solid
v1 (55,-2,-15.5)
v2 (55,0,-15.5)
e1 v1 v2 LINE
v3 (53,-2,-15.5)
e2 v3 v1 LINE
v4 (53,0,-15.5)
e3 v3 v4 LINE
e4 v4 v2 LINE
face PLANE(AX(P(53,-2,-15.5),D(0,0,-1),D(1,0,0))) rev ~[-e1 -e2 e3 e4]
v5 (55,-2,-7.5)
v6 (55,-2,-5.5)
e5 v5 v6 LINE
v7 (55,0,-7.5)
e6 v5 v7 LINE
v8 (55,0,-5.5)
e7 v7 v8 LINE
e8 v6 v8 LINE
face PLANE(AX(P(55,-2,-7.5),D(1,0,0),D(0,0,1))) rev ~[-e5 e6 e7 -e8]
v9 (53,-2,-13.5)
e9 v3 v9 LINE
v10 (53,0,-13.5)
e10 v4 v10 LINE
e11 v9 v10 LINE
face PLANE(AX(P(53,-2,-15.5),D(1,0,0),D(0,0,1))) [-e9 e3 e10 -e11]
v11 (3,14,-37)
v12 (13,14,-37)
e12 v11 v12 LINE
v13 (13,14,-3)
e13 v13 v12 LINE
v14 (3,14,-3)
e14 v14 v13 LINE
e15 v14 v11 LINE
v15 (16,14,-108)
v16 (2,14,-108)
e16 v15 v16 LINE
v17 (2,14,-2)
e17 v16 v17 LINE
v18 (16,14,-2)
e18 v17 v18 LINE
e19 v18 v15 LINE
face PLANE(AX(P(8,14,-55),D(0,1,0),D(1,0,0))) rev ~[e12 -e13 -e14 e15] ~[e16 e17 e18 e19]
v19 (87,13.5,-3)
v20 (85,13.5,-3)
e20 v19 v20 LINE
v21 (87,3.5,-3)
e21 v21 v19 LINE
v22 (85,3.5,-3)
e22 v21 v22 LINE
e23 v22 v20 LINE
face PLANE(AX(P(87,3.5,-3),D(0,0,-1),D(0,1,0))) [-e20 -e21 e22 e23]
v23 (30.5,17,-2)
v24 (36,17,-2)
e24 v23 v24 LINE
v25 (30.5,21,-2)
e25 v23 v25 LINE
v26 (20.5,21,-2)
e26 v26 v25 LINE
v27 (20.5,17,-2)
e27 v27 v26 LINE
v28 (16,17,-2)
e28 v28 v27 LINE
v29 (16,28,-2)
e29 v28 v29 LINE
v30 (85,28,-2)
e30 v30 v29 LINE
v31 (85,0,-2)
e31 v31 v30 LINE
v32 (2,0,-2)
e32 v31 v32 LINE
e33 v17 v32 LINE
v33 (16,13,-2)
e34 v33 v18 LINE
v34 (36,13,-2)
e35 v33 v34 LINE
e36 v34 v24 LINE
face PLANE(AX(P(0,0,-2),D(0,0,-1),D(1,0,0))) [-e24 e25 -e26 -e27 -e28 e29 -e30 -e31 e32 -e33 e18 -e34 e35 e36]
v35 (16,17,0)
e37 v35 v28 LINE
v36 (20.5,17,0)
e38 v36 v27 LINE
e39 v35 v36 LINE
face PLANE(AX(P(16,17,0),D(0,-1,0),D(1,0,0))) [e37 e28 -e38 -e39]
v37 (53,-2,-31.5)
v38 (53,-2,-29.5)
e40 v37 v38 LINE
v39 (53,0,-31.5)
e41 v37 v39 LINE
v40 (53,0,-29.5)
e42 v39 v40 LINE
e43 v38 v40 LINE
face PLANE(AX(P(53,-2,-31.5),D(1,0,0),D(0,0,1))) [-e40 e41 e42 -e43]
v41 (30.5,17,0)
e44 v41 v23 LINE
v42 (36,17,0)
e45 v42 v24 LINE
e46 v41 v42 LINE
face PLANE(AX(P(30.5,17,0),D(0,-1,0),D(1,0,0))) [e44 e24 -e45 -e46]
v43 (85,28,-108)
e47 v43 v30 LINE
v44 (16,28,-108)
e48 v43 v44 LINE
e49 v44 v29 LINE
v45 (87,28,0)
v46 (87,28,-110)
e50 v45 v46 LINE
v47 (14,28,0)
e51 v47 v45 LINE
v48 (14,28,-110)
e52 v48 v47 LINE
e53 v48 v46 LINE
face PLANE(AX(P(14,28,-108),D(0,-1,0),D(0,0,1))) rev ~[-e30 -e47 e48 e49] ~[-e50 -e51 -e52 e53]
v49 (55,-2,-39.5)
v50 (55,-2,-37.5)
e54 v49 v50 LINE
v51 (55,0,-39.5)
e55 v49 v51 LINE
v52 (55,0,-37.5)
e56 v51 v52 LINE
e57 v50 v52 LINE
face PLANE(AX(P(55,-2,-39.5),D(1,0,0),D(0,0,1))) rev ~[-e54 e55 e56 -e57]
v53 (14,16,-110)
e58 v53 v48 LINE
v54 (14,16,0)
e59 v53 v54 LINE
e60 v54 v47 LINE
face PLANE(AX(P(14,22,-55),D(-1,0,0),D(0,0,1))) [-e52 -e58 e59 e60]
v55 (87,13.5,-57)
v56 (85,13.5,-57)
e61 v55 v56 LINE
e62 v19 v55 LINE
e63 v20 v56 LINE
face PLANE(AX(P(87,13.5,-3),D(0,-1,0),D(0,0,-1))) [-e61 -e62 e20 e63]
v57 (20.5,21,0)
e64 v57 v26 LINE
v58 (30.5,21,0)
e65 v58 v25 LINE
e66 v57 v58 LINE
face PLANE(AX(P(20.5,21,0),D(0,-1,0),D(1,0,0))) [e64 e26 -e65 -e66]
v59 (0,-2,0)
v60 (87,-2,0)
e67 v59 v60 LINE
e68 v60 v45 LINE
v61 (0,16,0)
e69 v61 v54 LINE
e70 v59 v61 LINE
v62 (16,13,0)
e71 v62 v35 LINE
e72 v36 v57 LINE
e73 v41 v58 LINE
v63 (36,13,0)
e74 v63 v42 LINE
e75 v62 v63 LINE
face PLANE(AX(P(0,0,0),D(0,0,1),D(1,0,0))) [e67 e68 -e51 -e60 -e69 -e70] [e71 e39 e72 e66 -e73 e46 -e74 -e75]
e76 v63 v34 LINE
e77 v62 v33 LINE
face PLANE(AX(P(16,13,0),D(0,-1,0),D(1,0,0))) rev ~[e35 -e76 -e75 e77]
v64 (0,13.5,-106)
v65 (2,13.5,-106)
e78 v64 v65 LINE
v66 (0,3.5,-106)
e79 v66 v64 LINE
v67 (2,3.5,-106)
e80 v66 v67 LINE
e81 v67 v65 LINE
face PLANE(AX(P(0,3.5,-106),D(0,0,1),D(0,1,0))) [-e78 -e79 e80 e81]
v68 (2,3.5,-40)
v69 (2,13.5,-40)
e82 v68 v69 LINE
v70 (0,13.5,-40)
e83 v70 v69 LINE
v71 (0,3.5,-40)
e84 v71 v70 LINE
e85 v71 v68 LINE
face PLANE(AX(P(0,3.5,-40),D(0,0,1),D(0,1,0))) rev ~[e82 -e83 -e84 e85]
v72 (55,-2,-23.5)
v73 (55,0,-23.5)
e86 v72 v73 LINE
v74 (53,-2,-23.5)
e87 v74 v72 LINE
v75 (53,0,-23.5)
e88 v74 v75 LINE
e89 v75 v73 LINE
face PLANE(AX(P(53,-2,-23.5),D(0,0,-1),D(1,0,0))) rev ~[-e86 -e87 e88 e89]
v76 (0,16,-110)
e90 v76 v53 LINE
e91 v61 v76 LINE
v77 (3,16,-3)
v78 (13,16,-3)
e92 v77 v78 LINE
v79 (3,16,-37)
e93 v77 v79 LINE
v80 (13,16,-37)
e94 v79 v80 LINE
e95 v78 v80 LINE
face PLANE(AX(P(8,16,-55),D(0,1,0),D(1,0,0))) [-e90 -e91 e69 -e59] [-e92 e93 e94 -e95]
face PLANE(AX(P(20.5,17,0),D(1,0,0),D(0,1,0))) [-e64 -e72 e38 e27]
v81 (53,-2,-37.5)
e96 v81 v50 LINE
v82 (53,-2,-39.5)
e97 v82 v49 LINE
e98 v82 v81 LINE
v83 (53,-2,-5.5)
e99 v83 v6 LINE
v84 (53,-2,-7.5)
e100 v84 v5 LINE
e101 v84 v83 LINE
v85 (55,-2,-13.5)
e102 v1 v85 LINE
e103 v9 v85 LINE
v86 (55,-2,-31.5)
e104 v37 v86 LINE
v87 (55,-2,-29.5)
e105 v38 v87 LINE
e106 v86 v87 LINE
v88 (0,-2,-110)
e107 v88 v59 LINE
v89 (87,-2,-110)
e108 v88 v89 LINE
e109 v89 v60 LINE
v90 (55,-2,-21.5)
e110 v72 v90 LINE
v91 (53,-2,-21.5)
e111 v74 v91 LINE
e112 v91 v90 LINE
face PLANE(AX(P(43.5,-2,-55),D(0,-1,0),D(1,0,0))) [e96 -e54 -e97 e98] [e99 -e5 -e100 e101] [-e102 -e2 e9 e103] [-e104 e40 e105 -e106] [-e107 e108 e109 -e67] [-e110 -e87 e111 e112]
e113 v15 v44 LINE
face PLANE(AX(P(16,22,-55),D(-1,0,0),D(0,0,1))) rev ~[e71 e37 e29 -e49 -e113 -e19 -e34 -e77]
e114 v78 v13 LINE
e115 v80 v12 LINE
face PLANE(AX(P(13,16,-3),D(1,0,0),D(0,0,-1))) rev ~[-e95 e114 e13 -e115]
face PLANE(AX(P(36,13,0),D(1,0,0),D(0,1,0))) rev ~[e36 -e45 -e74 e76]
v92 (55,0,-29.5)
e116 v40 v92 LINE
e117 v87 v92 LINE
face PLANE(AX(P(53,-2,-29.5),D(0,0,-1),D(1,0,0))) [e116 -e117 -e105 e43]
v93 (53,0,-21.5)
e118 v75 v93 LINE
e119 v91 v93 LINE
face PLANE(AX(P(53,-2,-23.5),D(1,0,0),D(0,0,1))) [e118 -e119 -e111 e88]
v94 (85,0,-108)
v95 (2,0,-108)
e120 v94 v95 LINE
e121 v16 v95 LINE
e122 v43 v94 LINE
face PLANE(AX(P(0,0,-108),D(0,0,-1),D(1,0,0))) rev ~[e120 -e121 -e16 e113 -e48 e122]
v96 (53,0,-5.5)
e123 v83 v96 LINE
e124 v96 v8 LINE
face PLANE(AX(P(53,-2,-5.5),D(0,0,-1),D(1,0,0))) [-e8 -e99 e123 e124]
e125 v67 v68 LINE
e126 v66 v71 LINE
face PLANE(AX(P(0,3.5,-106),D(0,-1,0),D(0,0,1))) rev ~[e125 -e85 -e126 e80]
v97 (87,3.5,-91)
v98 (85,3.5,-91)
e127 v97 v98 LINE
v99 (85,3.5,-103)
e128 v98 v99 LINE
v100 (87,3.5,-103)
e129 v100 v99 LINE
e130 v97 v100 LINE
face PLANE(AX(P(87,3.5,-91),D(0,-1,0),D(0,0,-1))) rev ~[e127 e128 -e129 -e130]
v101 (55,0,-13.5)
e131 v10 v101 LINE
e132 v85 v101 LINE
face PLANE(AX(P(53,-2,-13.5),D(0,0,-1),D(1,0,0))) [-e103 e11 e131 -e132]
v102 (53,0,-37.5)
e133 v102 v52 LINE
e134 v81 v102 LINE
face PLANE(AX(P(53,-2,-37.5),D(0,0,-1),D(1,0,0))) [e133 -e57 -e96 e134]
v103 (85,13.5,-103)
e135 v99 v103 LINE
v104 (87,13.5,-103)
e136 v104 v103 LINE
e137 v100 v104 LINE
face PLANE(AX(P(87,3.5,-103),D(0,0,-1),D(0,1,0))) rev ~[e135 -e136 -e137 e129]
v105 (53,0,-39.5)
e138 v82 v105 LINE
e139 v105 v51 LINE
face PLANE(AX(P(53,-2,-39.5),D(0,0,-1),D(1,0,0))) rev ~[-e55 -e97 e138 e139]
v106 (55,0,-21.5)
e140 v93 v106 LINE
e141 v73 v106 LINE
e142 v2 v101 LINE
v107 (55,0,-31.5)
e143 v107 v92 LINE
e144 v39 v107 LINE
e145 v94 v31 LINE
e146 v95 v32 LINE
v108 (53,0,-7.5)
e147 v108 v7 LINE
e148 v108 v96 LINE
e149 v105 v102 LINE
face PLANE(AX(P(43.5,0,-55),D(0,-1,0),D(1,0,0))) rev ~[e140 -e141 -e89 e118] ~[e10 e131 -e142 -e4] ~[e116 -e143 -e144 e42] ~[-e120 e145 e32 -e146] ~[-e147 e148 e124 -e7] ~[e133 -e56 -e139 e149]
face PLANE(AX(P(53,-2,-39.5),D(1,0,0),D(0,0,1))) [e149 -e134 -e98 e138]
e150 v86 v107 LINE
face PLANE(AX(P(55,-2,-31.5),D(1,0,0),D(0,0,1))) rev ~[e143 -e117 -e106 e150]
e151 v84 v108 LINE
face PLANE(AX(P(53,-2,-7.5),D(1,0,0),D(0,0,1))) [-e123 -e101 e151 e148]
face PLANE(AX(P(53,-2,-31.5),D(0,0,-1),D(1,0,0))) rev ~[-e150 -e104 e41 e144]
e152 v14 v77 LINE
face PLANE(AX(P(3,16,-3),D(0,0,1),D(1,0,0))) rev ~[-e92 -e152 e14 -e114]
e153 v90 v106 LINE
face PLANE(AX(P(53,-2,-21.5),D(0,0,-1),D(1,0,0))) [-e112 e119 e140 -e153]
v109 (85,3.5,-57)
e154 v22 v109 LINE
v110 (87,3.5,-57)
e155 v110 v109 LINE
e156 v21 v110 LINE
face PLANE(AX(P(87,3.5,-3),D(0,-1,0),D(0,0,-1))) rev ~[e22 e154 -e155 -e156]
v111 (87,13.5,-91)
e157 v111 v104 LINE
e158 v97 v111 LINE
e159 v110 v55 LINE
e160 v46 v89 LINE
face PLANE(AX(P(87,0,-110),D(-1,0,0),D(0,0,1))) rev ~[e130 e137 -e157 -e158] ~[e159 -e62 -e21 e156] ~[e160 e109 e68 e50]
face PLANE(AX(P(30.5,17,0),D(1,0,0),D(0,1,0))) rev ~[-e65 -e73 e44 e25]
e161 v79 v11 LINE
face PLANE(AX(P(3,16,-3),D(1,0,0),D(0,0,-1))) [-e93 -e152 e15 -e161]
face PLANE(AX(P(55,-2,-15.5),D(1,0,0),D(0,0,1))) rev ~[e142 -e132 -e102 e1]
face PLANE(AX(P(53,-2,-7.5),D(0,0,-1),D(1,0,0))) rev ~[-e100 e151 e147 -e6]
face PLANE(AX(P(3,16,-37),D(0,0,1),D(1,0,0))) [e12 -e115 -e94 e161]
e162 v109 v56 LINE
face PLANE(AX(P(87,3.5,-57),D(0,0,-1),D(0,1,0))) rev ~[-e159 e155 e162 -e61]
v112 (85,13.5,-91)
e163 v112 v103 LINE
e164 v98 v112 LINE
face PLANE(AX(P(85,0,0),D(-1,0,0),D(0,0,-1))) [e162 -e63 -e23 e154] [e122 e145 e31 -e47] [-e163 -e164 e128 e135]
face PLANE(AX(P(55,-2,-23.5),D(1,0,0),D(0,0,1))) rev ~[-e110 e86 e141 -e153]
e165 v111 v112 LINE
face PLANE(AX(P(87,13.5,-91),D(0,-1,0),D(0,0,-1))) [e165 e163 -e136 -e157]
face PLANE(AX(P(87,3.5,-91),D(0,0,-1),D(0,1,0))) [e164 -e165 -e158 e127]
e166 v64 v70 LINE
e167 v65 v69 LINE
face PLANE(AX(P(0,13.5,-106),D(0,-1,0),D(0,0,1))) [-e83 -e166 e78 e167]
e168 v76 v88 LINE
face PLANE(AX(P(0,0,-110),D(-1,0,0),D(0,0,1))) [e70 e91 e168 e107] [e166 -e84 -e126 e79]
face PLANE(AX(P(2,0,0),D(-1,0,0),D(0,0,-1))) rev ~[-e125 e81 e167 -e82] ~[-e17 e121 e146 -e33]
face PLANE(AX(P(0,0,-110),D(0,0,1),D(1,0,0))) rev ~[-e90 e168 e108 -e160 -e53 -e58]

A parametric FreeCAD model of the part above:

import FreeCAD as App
import Part
import Sketcher
Q = App.Units.Quantity


def faces_at(feature, points):
    """Names of the faces that lie closest to the given points."""
    faces = feature.Shape.Faces
    near = lambda p: min(range(len(faces)), key=lambda i: faces[i].distToShape(Part.Vertex(*p))[0])
    return sorted({f"Face{near(p) + 1}" for p in points})

doc = App.newDocument("Part")
params = doc.addObject("Spreadsheet::Sheet", "Params")
for row, (alias, value) in enumerate([
    ("sketch1_width", "87 mm"),
    ("sketch1_height", "110 mm"),
    ("pad1_length", "28 mm"),
    ("thickness_wall", "2 mm"),
    ("sketch2_width", "10 mm"),
    ("sketch2_height", "66 mm"),
    ("pocket1_length", "2 mm"),
    ("sketch3_width", "14 mm"),
    ("pocket2_length", "110 mm"),
    ("sketch4_width", "16 mm"),
    ("sketch4_height", "110 mm"),
    ("pad2_length", "2 mm"),
    ("sketch5_width", "10 mm"),
    ("sketch5_height", "34 mm"),
    ("pocket3_length", "1 mm"),
    ("sketch6_width", "20 mm"),
    ("sketch6_width2", "10 mm"),
    ("sketch6_height", "4 mm"),
    ("sketch6_width3", "4.5 mm"),
    ("pocket4_length", "2 mm"),
    ("sketch7_width", "10 mm"),
    ("sketch7_height", "54 mm"),
    ("pocket5_length", "2 mm"),
    ("sketch8_width", "87 mm"),
    ("sketch8_height", "110 mm"),
    ("pad3_length", "2 mm"),
    ("sketch9_width", "10 mm"),
    ("sketch9_height", "12 mm"),
    ("pocket6_length", "2 mm"),
    ("sketch10_width", "2 mm"),
    ("pocket7_length", "2 mm"),
    ("sketch11_width", "10 mm"),
    ("sketch11_height", "34 mm"),
    ("pocket8_length", "2 mm"),
    ("sketch12_width", "12 mm"),
    ("sketch12_height", "106 mm"),
    ("pad4_length", "2 mm"),
], start=1):
    params.set(f"A{row}", alias)
    params.set(f"B{row}", "=" + value)
    params.setAlias(f"B{row}", alias)

body = doc.addObject("PartDesign::Body", "Body")

sketch1 = doc.addObject("Sketcher::SketchObject", "Sketch")
body.addObject(sketch1)
sketch1.AttachmentSupport = (doc.XZ_Plane, [""])
sketch1.MapMode = "FlatFace"
sketch1.addGeometry([
    Part.LineSegment(App.Vector(0, -110, 0), App.Vector(0, 0, 0)),
    Part.LineSegment(App.Vector(0, 0, 0), App.Vector(87, 0, 0)),
    Part.LineSegment(App.Vector(87, 0, 0), App.Vector(87, -110, 0)),
    Part.LineSegment(App.Vector(87, -110, 0), App.Vector(0, -110, 0)),
], False)
sketch1.addConstraint([
    Sketcher.Constraint("Coincident", 0, 2, 1, 1),
    Sketcher.Constraint("Coincident", 1, 2, 2, 1),
    Sketcher.Constraint("Coincident", 2, 2, 3, 1),
    Sketcher.Constraint("Coincident", 3, 2, 0, 1),
    Sketcher.Constraint("Vertical", 0),
    Sketcher.Constraint("Horizontal", 1),
    Sketcher.Constraint("Vertical", 2),
    Sketcher.Constraint("Horizontal", 3),
    Sketcher.Constraint("Coincident", 0, 2, -1, 1),
    Sketcher.Constraint("DistanceX", 1, 1, 1, 2, Q("87 mm")),
    Sketcher.Constraint("DistanceY", 0, 1, 0, 2, Q("110 mm")),
])
sketch1.setExpression("Constraints[9]", "Params.sketch1_width")
sketch1.setExpression("Constraints[10]", "Params.sketch1_height")
pad1 = doc.addObject("PartDesign::Pad", "Pad")
body.addObject(pad1)
pad1.Profile = sketch1
pad1.setExpression("Length", "Params.pad1_length")
pad1.Reversed = True
doc.recompute()

thickness = doc.addObject("PartDesign::Thickness", "Thickness")
body.addObject(thickness)
thickness.Base = (pad1, faces_at(pad1, [(43.5, 28, -55), (43.5, 0, -55)]))
thickness.setExpression("Value", "Params.thickness_wall")
thickness.Reversed = True
thickness.Join = "Intersection"

sketch2 = doc.addObject("Sketcher::SketchObject", "Sketch001")
body.addObject(sketch2)
sketch2.AttachmentSupport = (doc.YZ_Plane, [""])
sketch2.MapMode = "FlatFace"
sketch2.addGeometry([
    Part.LineSegment(App.Vector(14, -106, 0), App.Vector(4, -106, 0)),
    Part.LineSegment(App.Vector(4, -106, 0), App.Vector(4, -40, 0)),
    Part.LineSegment(App.Vector(4, -40, 0), App.Vector(14, -40, 0)),
    Part.LineSegment(App.Vector(14, -40, 0), App.Vector(14, -106, 0)),
], False)
sketch2.addConstraint([
    Sketcher.Constraint("Coincident", 0, 2, 1, 1),
    Sketcher.Constraint("Coincident", 1, 2, 2, 1),
    Sketcher.Constraint("Coincident", 2, 2, 3, 1),
    Sketcher.Constraint("Coincident", 3, 2, 0, 1),
    Sketcher.Constraint("Horizontal", 0),
    Sketcher.Constraint("Vertical", 1),
    Sketcher.Constraint("Horizontal", 2),
    Sketcher.Constraint("Vertical", 3),
    Sketcher.Constraint("DistanceX", 0, 2, 0, 1, Q("10 mm")),
    Sketcher.Constraint("DistanceY", 1, 1, 1, 2, Q("66 mm")),
    Sketcher.Constraint("DistanceY", 0, 2, -1, 1, Q("106 mm")),
    Sketcher.Constraint("DistanceX", -1, 1, 0, 2, Q("3.5 mm")),
])
sketch2.setExpression("Constraints[8]", "Params.sketch2_width")
sketch2.setExpression("Constraints[9]", "Params.sketch2_height")
pocket1 = doc.addObject("PartDesign::Pocket", "Pocket")
body.addObject(pocket1)
pocket1.Profile = sketch2
pocket1.setExpression("Length", "Params.pocket1_length")
pocket1.Reversed = True

sketch3 = doc.addObject("Sketcher::SketchObject", "Sketch002")
body.addObject(sketch3)
sketch3.AttachmentSupport = (doc.XY_Plane, [""])
sketch3.MapMode = "FlatFace"
sketch3.AttachmentOffset = App.Placement(App.Vector(0, 0, -110), App.Rotation())
sketch3.addGeometry([
    Part.LineSegment(App.Vector(14, 28, 0), App.Vector(14, 14, 0)),
    Part.LineSegment(App.Vector(14, 14, 0), App.Vector(0, 14, 0)),
    Part.LineSegment(App.Vector(0, 14, 0), App.Vector(0, 28, 0)),
    Part.LineSegment(App.Vector(0, 28, 0), App.Vector(14, 28, 0)),
], False)
sketch3.addConstraint([
    Sketcher.Constraint("Coincident", 0, 2, 1, 1),
    Sketcher.Constraint("Coincident", 1, 2, 2, 1),
    Sketcher.Constraint("Coincident", 2, 2, 3, 1),
    Sketcher.Constraint("Coincident", 3, 2, 0, 1),
    Sketcher.Constraint("Vertical", 0),
    Sketcher.Constraint("Horizontal", 1),
    Sketcher.Constraint("Vertical", 2),
    Sketcher.Constraint("Horizontal", 3),
    Sketcher.Constraint("PointOnObject", 1, 2, -2),
    Sketcher.Constraint("Equal", 3, 0),
    Sketcher.Constraint("DistanceX", 1, 2, 1, 1, Q("14 mm")),
    Sketcher.Constraint("DistanceY", -1, 1, 0, 2, Q("14 mm")),
])
sketch3.setExpression("Constraints[10]", "Params.sketch3_width")
pocket2 = doc.addObject("PartDesign::Pocket", "Pocket001")
body.addObject(pocket2)
pocket2.Profile = sketch3
pocket2.setExpression("Length", "Params.pocket2_length")
pocket2.Reversed = True

sketch4 = doc.addObject("Sketcher::SketchObject", "Sketch003")
body.addObject(sketch4)
sketch4.AttachmentSupport = (doc.XZ_Plane, [""])
sketch4.MapMode = "FlatFace"
sketch4.AttachmentOffset = App.Placement(App.Vector(0, 0, -14), App.Rotation())
sketch4.addGeometry([
    Part.LineSegment(App.Vector(0, -110, 0), App.Vector(0, 0, 0)),
    Part.LineSegment(App.Vector(0, 0, 0), App.Vector(16, 0, 0)),
    Part.LineSegment(App.Vector(16, 0, 0), App.Vector(16, -110, 0)),
    Part.LineSegment(App.Vector(16, -110, 0), App.Vector(0, -110, 0)),
], False)
sketch4.addConstraint([
    Sketcher.Constraint("Coincident", 0, 2, 1, 1),
    Sketcher.Constraint("Coincident", 1, 2, 2, 1),
    Sketcher.Constraint("Coincident", 2, 2, 3, 1),
    Sketcher.Constraint("Coincident", 3, 2, 0, 1),
    Sketcher.Constraint("Vertical", 0),
    Sketcher.Constraint("Horizontal", 1),
    Sketcher.Constraint("Vertical", 2),
    Sketcher.Constraint("Horizontal", 3),
    Sketcher.Constraint("Coincident", 0, 2, -1, 1),
    Sketcher.Constraint("DistanceX", 1, 1, 1, 2, Q("16 mm")),
    Sketcher.Constraint("DistanceY", 0, 1, 0, 2, Q("110 mm")),
])
sketch4.setExpression("Constraints[9]", "Params.sketch4_width")
sketch4.setExpression("Constraints[10]", "Params.sketch4_height")
pad2 = doc.addObject("PartDesign::Pad", "Pad001")
body.addObject(pad2)
pad2.Profile = sketch4
pad2.setExpression("Length", "Params.pad2_length")
pad2.Reversed = True

sketch5 = doc.addObject("Sketcher::SketchObject", "Sketch004")
body.addObject(sketch5)
sketch5.AttachmentSupport = (doc.XZ_Plane, [""])
sketch5.MapMode = "FlatFace"
sketch5.AttachmentOffset = App.Placement(App.Vector(0, 0, -16), App.Rotation())
sketch5.addGeometry([
    Part.LineSegment(App.Vector(3, -37, 0), App.Vector(3, -3, 0)),
    Part.LineSegment(App.Vector(3, -3, 0), App.Vector(13, -3, 0)),
    Part.LineSegment(App.Vector(13, -3, 0), App.Vector(13, -37, 0)),
    Part.LineSegment(App.Vector(13, -37, 0), App.Vector(3, -37, 0)),
], False)
sketch5.addConstraint([
    Sketcher.Constraint("Coincident", 0, 2, 1, 1),
    Sketcher.Constraint("Coincident", 1, 2, 2, 1),
    Sketcher.Constraint("Coincident", 2, 2, 3, 1),
    Sketcher.Constraint("Coincident", 3, 2, 0, 1),
    Sketcher.Constraint("Vertical", 0),
    Sketcher.Constraint("Horizontal", 1),
    Sketcher.Constraint("Vertical", 2),
    Sketcher.Constraint("Horizontal", 3),
    Sketcher.Constraint("DistanceX", 1, 1, 1, 2, Q("10 mm")),
    Sketcher.Constraint("DistanceY", 0, 1, 0, 2, Q("34 mm")),
    Sketcher.Constraint("DistanceX", -1, 1, 0, 2, Q("3 mm")),
    Sketcher.Constraint("DistanceY", 0, 2, -1, 1, Q("3 mm")),
])
sketch5.setExpression("Constraints[8]", "Params.sketch5_width")
sketch5.setExpression("Constraints[9]", "Params.sketch5_height")
pocket3 = doc.addObject("PartDesign::Pocket", "Pocket002")
body.addObject(pocket3)
pocket3.Profile = sketch5
pocket3.setExpression("Length", "Params.pocket3_length")
pocket3.Reversed = True

sketch6 = doc.addObject("Sketcher::SketchObject", "Sketch005")
body.addObject(sketch6)
sketch6.AttachmentSupport = (doc.XY_Plane, [""])
sketch6.MapMode = "FlatFace"
sketch6.addGeometry([
    Part.LineSegment(App.Vector(20.5, 21, 0), App.Vector(20.5, 17, 0)),
    Part.LineSegment(App.Vector(20.5, 17, 0), App.Vector(16, 17, 0)),
    Part.LineSegment(App.Vector(16, 17, 0), App.Vector(16, 13, 0)),
    Part.LineSegment(App.Vector(16, 13, 0), App.Vector(36, 13, 0)),
    Part.LineSegment(App.Vector(36, 13, 0), App.Vector(36, 17, 0)),
    Part.LineSegment(App.Vector(36, 17, 0), App.Vector(30.5, 17, 0)),
    Part.LineSegment(App.Vector(30.5, 17, 0), App.Vector(30.5, 21, 0)),
    Part.LineSegment(App.Vector(30.5, 21, 0), App.Vector(20.5, 21, 0)),
], False)
sketch6.addConstraint([
    Sketcher.Constraint("Coincident", 0, 2, 1, 1),
    Sketcher.Constraint("Coincident", 1, 2, 2, 1),
    Sketcher.Constraint("Coincident", 2, 2, 3, 1),
    Sketcher.Constraint("Coincident", 3, 2, 4, 1),
    Sketcher.Constraint("Coincident", 4, 2, 5, 1),
    Sketcher.Constraint("Coincident", 5, 2, 6, 1),
    Sketcher.Constraint("Coincident", 6, 2, 7, 1),
    Sketcher.Constraint("Coincident", 7, 2, 0, 1),
    Sketcher.Constraint("Vertical", 0),
    Sketcher.Constraint("Horizontal", 1),
    Sketcher.Constraint("Vertical", 2),
    Sketcher.Constraint("Horizontal", 3),
    Sketcher.Constraint("Vertical", 4),
    Sketcher.Constraint("Horizontal", 5),
    Sketcher.Constraint("Vertical", 6),
    Sketcher.Constraint("Horizontal", 7),
    Sketcher.Constraint("Horizontal", 1, 2, 4, 2),
    Sketcher.Constraint("Equal", 0, 2),
    Sketcher.Constraint("DistanceX", 3, 1, 3, 2, Q("20 mm")),
    Sketcher.Constraint("DistanceX", 7, 2, 7, 1, Q("10 mm")),
    Sketcher.Constraint("DistanceY", 0, 2, 0, 1, Q("4 mm")),
    Sketcher.Constraint("DistanceX", 1, 2, 1, 1, Q("4.5 mm")),
    Sketcher.Constraint("DistanceY", -1, 1, 0, 2, Q("17 mm")),
    Sketcher.Constraint("DistanceX", -1, 1, 1, 2, Q("16 mm")),
])
sketch6.setExpression("Constraints[18]", "Params.sketch6_width")
sketch6.setExpression("Constraints[19]", "Params.sketch6_width2")
sketch6.setExpression("Constraints[20]", "Params.sketch6_height")
sketch6.setExpression("Constraints[21]", "Params.sketch6_width3")
pocket4 = doc.addObject("PartDesign::Pocket", "Pocket003")
body.addObject(pocket4)
pocket4.Profile = sketch6
pocket4.setExpression("Length", "Params.pocket4_length")

sketch7 = doc.addObject("Sketcher::SketchObject", "Sketch006")
body.addObject(sketch7)
sketch7.AttachmentSupport = (doc.YZ_Plane, [""])
sketch7.MapMode = "FlatFace"
sketch7.AttachmentOffset = App.Placement(App.Vector(0, 0, 87), App.Rotation())
sketch7.addGeometry([
    Part.LineSegment(App.Vector(14, -3, 0), App.Vector(4, -3, 0)),
    Part.LineSegment(App.Vector(4, -3, 0), App.Vector(4, -57, 0)),
    Part.LineSegment(App.Vector(4, -57, 0), App.Vector(14, -57, 0)),
    Part.LineSegment(App.Vector(14, -57, 0), App.Vector(14, -3, 0)),
], False)
sketch7.addConstraint([
    Sketcher.Constraint("Coincident", 0, 2, 1, 1),
    Sketcher.Constraint("Coincident", 1, 2, 2, 1),
    Sketcher.Constraint("Coincident", 2, 2, 3, 1),
    Sketcher.Constraint("Coincident", 3, 2, 0, 1),
    Sketcher.Constraint("Horizontal", 0),
    Sketcher.Constraint("Vertical", 1),
    Sketcher.Constraint("Horizontal", 2),
    Sketcher.Constraint("Vertical", 3),
    Sketcher.Constraint("DistanceX", 0, 2, 0, 1, Q("10 mm")),
    Sketcher.Constraint("DistanceY", 1, 2, 1, 1, Q("54 mm")),
    Sketcher.Constraint("DistanceY", 0, 2, -1, 1, Q("3 mm")),
    Sketcher.Constraint("DistanceX", -1, 1, 0, 2, Q("3.5 mm")),
])
sketch7.setExpression("Constraints[8]", "Params.sketch7_width")
sketch7.setExpression("Constraints[9]", "Params.sketch7_height")
pocket5 = doc.addObject("PartDesign::Pocket", "Pocket004")
body.addObject(pocket5)
pocket5.Profile = sketch7
pocket5.setExpression("Length", "Params.pocket5_length")

sketch8 = doc.addObject("Sketcher::SketchObject", "Sketch007")
body.addObject(sketch8)
sketch8.AttachmentSupport = (doc.XZ_Plane, [""])
sketch8.MapMode = "FlatFace"
sketch8.addGeometry([
    Part.LineSegment(App.Vector(0, 0, 0), App.Vector(0, -110, 0)),
    Part.LineSegment(App.Vector(0, -110, 0), App.Vector(87, -110, 0)),
    Part.LineSegment(App.Vector(87, -110, 0), App.Vector(87, 0, 0)),
    Part.LineSegment(App.Vector(87, 0, 0), App.Vector(0, 0, 0)),
], False)
sketch8.addConstraint([
    Sketcher.Constraint("Coincident", 0, 2, 1, 1),
    Sketcher.Constraint("Coincident", 1, 2, 2, 1),
    Sketcher.Constraint("Coincident", 2, 2, 3, 1),
    Sketcher.Constraint("Coincident", 3, 2, 0, 1),
    Sketcher.Constraint("Vertical", 0),
    Sketcher.Constraint("Horizontal", 1),
    Sketcher.Constraint("Vertical", 2),
    Sketcher.Constraint("Horizontal", 3),
    Sketcher.Constraint("Coincident", 3, 2, -1, 1),
    Sketcher.Constraint("DistanceX", 1, 1, 1, 2, Q("87 mm")),
    Sketcher.Constraint("DistanceY", 0, 2, 0, 1, Q("110 mm")),
])
sketch8.setExpression("Constraints[9]", "Params.sketch8_width")
sketch8.setExpression("Constraints[10]", "Params.sketch8_height")
pad3 = doc.addObject("PartDesign::Pad", "Pad002")
body.addObject(pad3)
pad3.Profile = sketch8
pad3.setExpression("Length", "Params.pad3_length")

sketch9 = doc.addObject("Sketcher::SketchObject", "Sketch008")
body.addObject(sketch9)
sketch9.AttachmentSupport = (doc.YZ_Plane, [""])
sketch9.MapMode = "FlatFace"
sketch9.AttachmentOffset = App.Placement(App.Vector(0, 0, 87), App.Rotation())
sketch9.addGeometry([
    Part.LineSegment(App.Vector(14, -91, 0), App.Vector(4, -91, 0)),
    Part.LineSegment(App.Vector(4, -91, 0), App.Vector(4, -103, 0)),
    Part.LineSegment(App.Vector(4, -103, 0), App.Vector(14, -103, 0)),
    Part.LineSegment(App.Vector(14, -103, 0), App.Vector(14, -91, 0)),
], False)
sketch9.addConstraint([
    Sketcher.Constraint("Coincident", 0, 2, 1, 1),
    Sketcher.Constraint("Coincident", 1, 2, 2, 1),
    Sketcher.Constraint("Coincident", 2, 2, 3, 1),
    Sketcher.Constraint("Coincident", 3, 2, 0, 1),
    Sketcher.Constraint("Horizontal", 0),
    Sketcher.Constraint("Vertical", 1),
    Sketcher.Constraint("Horizontal", 2),
    Sketcher.Constraint("Vertical", 3),
    Sketcher.Constraint("DistanceX", 0, 2, 0, 1, Q("10 mm")),
    Sketcher.Constraint("DistanceY", 1, 2, 1, 1, Q("12 mm")),
    Sketcher.Constraint("DistanceY", 0, 2, -1, 1, Q("91 mm")),
    Sketcher.Constraint("DistanceX", -1, 1, 0, 2, Q("3.5 mm")),
])
sketch9.setExpression("Constraints[8]", "Params.sketch9_width")
sketch9.setExpression("Constraints[9]", "Params.sketch9_height")
pocket6 = doc.addObject("PartDesign::Pocket", "Pocket005")
body.addObject(pocket6)
pocket6.Profile = sketch9
pocket6.setExpression("Length", "Params.pocket6_length")

sketch10 = doc.addObject("Sketcher::SketchObject", "Sketch009")
body.addObject(sketch10)
sketch10.AttachmentSupport = (doc.XZ_Plane, [""])
sketch10.MapMode = "FlatFace"
sketch10.AttachmentOffset = App.Placement(App.Vector(0, 0, 2), App.Rotation())
sketch10.addGeometry([
    Part.LineSegment(App.Vector(53, -5.5, 0), App.Vector(53, -7.5, 0)),
    Part.LineSegment(App.Vector(53, -7.5, 0), App.Vector(55, -7.5, 0)),
    Part.LineSegment(App.Vector(55, -7.5, 0), App.Vector(55, -5.5, 0)),
    Part.LineSegment(App.Vector(55, -5.5, 0), App.Vector(53, -5.5, 0)),
    Part.LineSegment(App.Vector(53, -37.5, 0), App.Vector(53, -39.5, 0)),
    Part.LineSegment(App.Vector(53, -39.5, 0), App.Vector(55, -39.5, 0)),
    Part.LineSegment(App.Vector(55, -39.5, 0), App.Vector(55, -37.5, 0)),
    Part.LineSegment(App.Vector(55, -37.5, 0), App.Vector(53, -37.5, 0)),
    Part.LineSegment(App.Vector(53, -21.5, 0), App.Vector(53, -23.5, 0)),
    Part.LineSegment(App.Vector(53, -23.5, 0), App.Vector(55, -23.5, 0)),
    Part.LineSegment(App.Vector(55, -23.5, 0), App.Vector(55, -21.5, 0)),
    Part.LineSegment(App.Vector(55, -21.5, 0), App.Vector(53, -21.5, 0)),
    Part.LineSegment(App.Vector(53, -13.5, 0), App.Vector(53, -15.5, 0)),
    Part.LineSegment(App.Vector(53, -15.5, 0), App.Vector(55, -15.5, 0)),
    Part.LineSegment(App.Vector(55, -15.5, 0), App.Vector(55, -13.5, 0)),
    Part.LineSegment(App.Vector(55, -13.5, 0), App.Vector(53, -13.5, 0)),
    Part.LineSegment(App.Vector(53, -29.5, 0), App.Vector(53, -31.5, 0)),
    Part.LineSegment(App.Vector(53, -31.5, 0), App.Vector(55, -31.5, 0)),
    Part.LineSegment(App.Vector(55, -31.5, 0), App.Vector(55, -29.5, 0)),
    Part.LineSegment(App.Vector(55, -29.5, 0), App.Vector(53, -29.5, 0)),
], False)
sketch10.addConstraint([
    Sketcher.Constraint("Coincident", 0, 2, 1, 1),
    Sketcher.Constraint("Coincident", 1, 2, 2, 1),
    Sketcher.Constraint("Coincident", 2, 2, 3, 1),
    Sketcher.Constraint("Coincident", 3, 2, 0, 1),
    Sketcher.Constraint("Coincident", 4, 2, 5, 1),
    Sketcher.Constraint("Coincident", 5, 2, 6, 1),
    Sketcher.Constraint("Coincident", 6, 2, 7, 1),
    Sketcher.Constraint("Coincident", 7, 2, 4, 1),
    Sketcher.Constraint("Coincident", 8, 2, 9, 1),
    Sketcher.Constraint("Coincident", 9, 2, 10, 1),
    Sketcher.Constraint("Coincident", 10, 2, 11, 1),
    Sketcher.Constraint("Coincident", 11, 2, 8, 1),
    Sketcher.Constraint("Coincident", 12, 2, 13, 1),
    Sketcher.Constraint("Coincident", 13, 2, 14, 1),
    Sketcher.Constraint("Coincident", 14, 2, 15, 1),
    Sketcher.Constraint("Coincident", 15, 2, 12, 1),
    Sketcher.Constraint("Coincident", 16, 2, 17, 1),
    Sketcher.Constraint("Coincident", 17, 2, 18, 1),
    Sketcher.Constraint("Coincident", 18, 2, 19, 1),
    Sketcher.Constraint("Coincident", 19, 2, 16, 1),
    Sketcher.Constraint("Vertical", 0),
    Sketcher.Constraint("Horizontal", 1),
    Sketcher.Constraint("Vertical", 2),
    Sketcher.Constraint("Horizontal", 3),
    Sketcher.Constraint("Vertical", 4),
    Sketcher.Constraint("Horizontal", 5),
    Sketcher.Constraint("Vertical", 6),
    Sketcher.Constraint("Horizontal", 7),
    Sketcher.Constraint("Vertical", 8),
    Sketcher.Constraint("Horizontal", 9),
    Sketcher.Constraint("Vertical", 10),
    Sketcher.Constraint("Horizontal", 11),
    Sketcher.Constraint("Vertical", 12),
    Sketcher.Constraint("Horizontal", 13),
    Sketcher.Constraint("Vertical", 14),
    Sketcher.Constraint("Horizontal", 15),
    Sketcher.Constraint("Vertical", 16),
    Sketcher.Constraint("Horizontal", 17),
    Sketcher.Constraint("Vertical", 18),
    Sketcher.Constraint("Horizontal", 19),
    Sketcher.Constraint("Vertical", 3, 2, 4, 2),
    Sketcher.Constraint("Vertical", 2, 2, 5, 2),
    Sketcher.Constraint("Vertical", 7, 2, 8, 2),
    Sketcher.Constraint("Vertical", 6, 2, 9, 2),
    Sketcher.Constraint("Vertical", 11, 2, 12, 2),
    Sketcher.Constraint("Vertical", 10, 2, 13, 2),
    Sketcher.Constraint("Vertical", 15, 2, 16, 2),
    Sketcher.Constraint("Vertical", 14, 2, 17, 2),
    Sketcher.Constraint("Equal", 19, 0),
    Sketcher.Constraint("Equal", 2, 4),
    Sketcher.Constraint("Equal", 6, 8),
    Sketcher.Constraint("Equal", 10, 12),
    Sketcher.Constraint("Equal", 14, 16),
    Sketcher.Constraint("DistanceX", 1, 1, 1, 2, Q("2 mm")),
    Sketcher.Constraint("DistanceX", -1, 1, 0, 2, Q("53 mm")),
    Sketcher.Constraint("DistanceY", 4, 2, 0, 2, Q("32 mm")),
    Sketcher.Constraint("DistanceY", 7, 2, 8, 2, Q("14 mm")),
    Sketcher.Constraint("DistanceY", 11, 2, 12, 2, Q("6 mm")),
    Sketcher.Constraint("DistanceY", 7, 2, 16, 2, Q("6 mm")),
    Sketcher.Constraint("DistanceY", 0, 2, -1, 1, Q("7.5 mm")),
])
sketch10.setExpression("Constraints[53]", "Params.sketch10_width")
pocket7 = doc.addObject("PartDesign::Pocket", "Pocket006")
body.addObject(pocket7)
pocket7.Profile = sketch10
pocket7.setExpression("Length", "Params.pocket7_length")

sketch11 = doc.addObject("Sketcher::SketchObject", "Sketch010")
body.addObject(sketch11)
sketch11.AttachmentSupport = (doc.XZ_Plane, [""])
sketch11.MapMode = "FlatFace"
sketch11.AttachmentOffset = App.Placement(App.Vector(0, 0, -15), App.Rotation())
sketch11.addGeometry([
    Part.LineSegment(App.Vector(3, -37, 0), App.Vector(3, -3, 0)),
    Part.LineSegment(App.Vector(3, -3, 0), App.Vector(13, -3, 0)),
    Part.LineSegment(App.Vector(13, -3, 0), App.Vector(13, -37, 0)),
    Part.LineSegment(App.Vector(13, -37, 0), App.Vector(3, -37, 0)),
], False)
sketch11.addConstraint([
    Sketcher.Constraint("Coincident", 0, 2, 1, 1),
    Sketcher.Constraint("Coincident", 1, 2, 2, 1),
    Sketcher.Constraint("Coincident", 2, 2, 3, 1),
    Sketcher.Constraint("Coincident", 3, 2, 0, 1),
    Sketcher.Constraint("Vertical", 0),
    Sketcher.Constraint("Horizontal", 1),
    Sketcher.Constraint("Vertical", 2),
    Sketcher.Constraint("Horizontal", 3),
    Sketcher.Constraint("DistanceX", 1, 1, 1, 2, Q("10 mm")),
    Sketcher.Constraint("DistanceY", 0, 1, 0, 2, Q("34 mm")),
    Sketcher.Constraint("DistanceX", -1, 1, 0, 2, Q("3 mm")),
    Sketcher.Constraint("DistanceY", 0, 2, -1, 1, Q("3 mm")),
])
sketch11.setExpression("Constraints[8]", "Params.sketch11_width")
sketch11.setExpression("Constraints[9]", "Params.sketch11_height")
pocket8 = doc.addObject("PartDesign::Pocket", "Pocket007")
body.addObject(pocket8)
pocket8.Profile = sketch11
pocket8.setExpression("Length", "Params.pocket8_length")
pocket8.Reversed = True

sketch12 = doc.addObject("Sketcher::SketchObject", "Sketch011")
body.addObject(sketch12)
sketch12.AttachmentSupport = (doc.YZ_Plane, [""])
sketch12.MapMode = "FlatFace"
sketch12.AttachmentOffset = App.Placement(App.Vector(0, 0, 14), App.Rotation())
sketch12.addGeometry([
    Part.LineSegment(App.Vector(28, -108, 0), App.Vector(16, -108, 0)),
    Part.LineSegment(App.Vector(16, -108, 0), App.Vector(16, -2, 0)),
    Part.LineSegment(App.Vector(16, -2, 0), App.Vector(28, -2, 0)),
    Part.LineSegment(App.Vector(28, -2, 0), App.Vector(28, -108, 0)),
], False)
sketch12.addConstraint([
    Sketcher.Constraint("Coincident", 0, 2, 1, 1),
    Sketcher.Constraint("Coincident", 1, 2, 2, 1),
    Sketcher.Constraint("Coincident", 2, 2, 3, 1),
    Sketcher.Constraint("Coincident", 3, 2, 0, 1),
    Sketcher.Constraint("Horizontal", 0),
    Sketcher.Constraint("Vertical", 1),
    Sketcher.Constraint("Horizontal", 2),
    Sketcher.Constraint("Vertical", 3),
    Sketcher.Constraint("DistanceX", 0, 2, 0, 1, Q("12 mm")),
    Sketcher.Constraint("DistanceY", 1, 1, 1, 2, Q("106 mm")),
    Sketcher.Constraint("DistanceX", -1, 1, 0, 2, Q("16 mm")),
    Sketcher.Constraint("DistanceY", 0, 2, -1, 1, Q("108 mm")),
])
sketch12.setExpression("Constraints[8]", "Params.sketch12_width")
sketch12.setExpression("Constraints[9]", "Params.sketch12_height")
pad4 = doc.addObject("PartDesign::Pad", "Pad003")
body.addObject(pad4)
pad4.Profile = sketch12
pad4.setExpression("Length", "Params.pad4_length")

doc.recompute()
